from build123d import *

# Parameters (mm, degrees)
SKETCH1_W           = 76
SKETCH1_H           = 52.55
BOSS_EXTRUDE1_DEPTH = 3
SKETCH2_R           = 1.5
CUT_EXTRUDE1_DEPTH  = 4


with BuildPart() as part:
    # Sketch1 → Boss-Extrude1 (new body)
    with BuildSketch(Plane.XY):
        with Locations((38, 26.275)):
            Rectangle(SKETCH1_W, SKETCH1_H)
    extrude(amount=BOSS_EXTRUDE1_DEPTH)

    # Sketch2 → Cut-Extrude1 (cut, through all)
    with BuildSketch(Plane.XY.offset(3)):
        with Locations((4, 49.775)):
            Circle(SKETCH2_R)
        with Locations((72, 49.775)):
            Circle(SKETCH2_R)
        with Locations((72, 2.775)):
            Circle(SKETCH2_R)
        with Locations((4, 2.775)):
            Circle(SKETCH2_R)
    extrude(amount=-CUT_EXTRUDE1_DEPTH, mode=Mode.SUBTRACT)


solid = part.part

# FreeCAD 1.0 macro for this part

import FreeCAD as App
import Part
import Sketcher

V = App.Vector
Q = App.Units.Quantity

doc = App.newDocument("Part")
body = doc.addObject("PartDesign::Body", "Body")

sketch1 = doc.addObject("Sketcher::SketchObject", "Sketch")
body.addObject(sketch1)
sketch1.AttachmentSupport = (doc.XY_Plane, [""])
sketch1.MapMode = "FlatFace"
sketch1.addGeometry([
    Part.LineSegment(V(0, 53, 0), V(0, 0, 0)),
    Part.LineSegment(V(0, 0, 0), V(76, 0, 0)),
    Part.LineSegment(V(76, 0, 0), V(76, 53, 0)),
    Part.LineSegment(V(76, 53, 0), V(0, 53, 0)),
], False)
sketch1.addConstraint([
    Sketcher.Constraint("Coincident", 0, 2, 1, 1),
    Sketcher.Constraint("Coincident", 1, 2, 2, 1),
    Sketcher.Constraint("Coincident", 2, 2, 3, 1),
    Sketcher.Constraint("Coincident", 3, 2, 0, 1),
    Sketcher.Constraint("Vertical", 0),
    Sketcher.Constraint("Horizontal", 1),
    Sketcher.Constraint("Vertical", 2),
    Sketcher.Constraint("Horizontal", 3),
    Sketcher.Constraint("Coincident", 0, 2, -1, 1),
    Sketcher.Constraint("DistanceX", 1, 1, 1, 2, Q("76 mm")),
    Sketcher.Constraint("DistanceY", 0, 2, 0, 1, Q("52.55 mm")),
])
pad1 = doc.addObject("PartDesign::Pad", "Pad")
body.addObject(pad1)
pad1.Profile = sketch1
pad1.Length = 3

sketch2 = doc.addObject("Sketcher::SketchObject", "Sketch001")
body.addObject(sketch2)
sketch2.AttachmentSupport = (doc.XY_Plane, [""])
sketch2.MapMode = "FlatFace"
sketch2.AttachmentOffset = App.Placement(V(0, 0, 3), App.Rotation())
sketch2.addGeometry([
    Part.Circle(V(4, 49.8, 0), V(0, 0, 1), 1.5),
    Part.Circle(V(72, 49.8, 0), V(0, 0, 1), 1.5),
    Part.Circle(V(72, 2.8, 0), V(0, 0, 1), 1.5),
    Part.Circle(V(4, 2.8, 0), V(0, 0, 1), 1.5),
], False)
sketch2.addConstraint([
    Sketcher.Constraint("Equal", 0, 1),
    Sketcher.Constraint("Equal", 1, 2),
    Sketcher.Constraint("Equal", 2, 3),
    Sketcher.Constraint("Horizontal", 0, 3, 1, 3),
    Sketcher.Constraint("Horizontal", 2, 3, 3, 3),
    Sketcher.Constraint("Vertical", 1, 3, 2, 3),
    Sketcher.Constraint("Vertical", 0, 3, 3, 3),
    Sketcher.Constraint("Diameter", 0, Q("3 mm")),
    Sketcher.Constraint("DistanceX", -1, 1, 0, 3, Q("4 mm")),
    Sketcher.Constraint("DistanceX", -1, 1, 1, 3, Q("72 mm")),
    Sketcher.Constraint("DistanceY", 2, 3, 1, 3, Q("47 mm")),
    Sketcher.Constraint("DistanceY", -1, 1, 0, 3, Q("49.775 mm")),
])
pocket1 = doc.addObject("PartDesign::Pocket", "Pocket")
body.addObject(pocket1)
pocket1.Profile = sketch2
pocket1.Type = "ThroughAll"

doc.recompute()
